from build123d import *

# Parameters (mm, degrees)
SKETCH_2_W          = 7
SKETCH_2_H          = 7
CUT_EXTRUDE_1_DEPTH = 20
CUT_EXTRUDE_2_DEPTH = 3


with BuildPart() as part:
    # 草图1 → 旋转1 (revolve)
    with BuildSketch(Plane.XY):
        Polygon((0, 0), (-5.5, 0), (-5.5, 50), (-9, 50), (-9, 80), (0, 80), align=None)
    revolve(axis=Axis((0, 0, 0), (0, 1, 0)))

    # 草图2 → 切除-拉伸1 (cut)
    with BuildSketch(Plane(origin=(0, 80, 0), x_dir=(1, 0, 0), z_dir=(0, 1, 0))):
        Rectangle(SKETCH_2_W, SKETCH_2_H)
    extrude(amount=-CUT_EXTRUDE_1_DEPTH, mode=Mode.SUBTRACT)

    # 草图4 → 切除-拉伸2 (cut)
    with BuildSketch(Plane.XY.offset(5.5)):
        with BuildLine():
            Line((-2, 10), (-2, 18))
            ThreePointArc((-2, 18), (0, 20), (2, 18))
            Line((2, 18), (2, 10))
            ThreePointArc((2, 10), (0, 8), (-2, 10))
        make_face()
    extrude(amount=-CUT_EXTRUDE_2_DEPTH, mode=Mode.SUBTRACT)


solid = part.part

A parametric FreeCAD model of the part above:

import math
import FreeCAD as App
import Part
import Sketcher

doc = App.newDocument("Part")
body = doc.addObject("PartDesign::Body", "Body")

# Sketch on XY plane
sketch1 = body.newObject("Sketcher::SketchObject", "Sketch")
sketch1.AttachmentSupport = (doc.getObject("XY_Plane"), [""])
sketch1.MapMode = "FlatFace"
sketch1.addGeometry([
    Part.LineSegment(App.Vector(-5.5, 0, 0), App.Vector(0, 0, 0)),  # 0
    Part.LineSegment(App.Vector(0, 0, 0), App.Vector(0, 80, 0)),  # 1
    Part.LineSegment(App.Vector(0, 80, 0), App.Vector(-9, 80, 0)),  # 2
    Part.LineSegment(App.Vector(-9, 80, 0), App.Vector(-9, 50, 0)),  # 3
    Part.LineSegment(App.Vector(-9, 50, 0), App.Vector(-5.5, 50, 0)),  # 4
    Part.LineSegment(App.Vector(-5.5, 50, 0), App.Vector(-5.5, 0, 0)),  # 5
], False)
sketch1.addConstraint([
    Sketcher.Constraint("Coincident", 0, 2, 1, 1),
    Sketcher.Constraint("Coincident", 1, 2, 2, 1),
    Sketcher.Constraint("Coincident", 2, 2, 3, 1),
    Sketcher.Constraint("Coincident", 3, 2, 4, 1),
    Sketcher.Constraint("Coincident", 4, 2, 5, 1),
    Sketcher.Constraint("Coincident", 5, 2, 0, 1),
    Sketcher.Constraint("Horizontal", 0),
    Sketcher.Constraint("Vertical", 1),
    Sketcher.Constraint("Horizontal", 2),
    Sketcher.Constraint("Vertical", 3),
    Sketcher.Constraint("Horizontal", 4),
    Sketcher.Constraint("Vertical", 5),
    Sketcher.Constraint("Coincident", 0, 2, -1, 1),
    Sketcher.Constraint("DistanceX", 2, 2, 2, 1, 9.0),
    Sketcher.Constraint("DistanceY", 1, 1, 1, 2, 80.0),
    Sketcher.Constraint("DistanceY", 3, 2, 3, 1, 30.0),
    Sketcher.Constraint("DistanceX", 0, 1, 0, 2, 5.5),
])
revolution = body.newObject("PartDesign::Revolution", "Revolution")
revolution.Profile = sketch1
revolution.ReferenceAxis = (sketch1, ["V_Axis"])
revolution.Angle = 360

# Sketch on XZ plane
sketch2 = body.newObject("Sketcher::SketchObject", "Sketch001")
sketch2.AttachmentSupport = (doc.getObject("XZ_Plane"), [""])
sketch2.MapMode = "FlatFace"
sketch2.AttachmentOffset = App.Placement(App.Vector(0, 0, -80), App.Rotation())
sketch2.addGeometry([
    Part.LineSegment(App.Vector(-4, -4, 0), App.Vector(-4, 4, 0)),
    Part.LineSegment(App.Vector(-4, 4, 0), App.Vector(4, 4, 0)),
    Part.LineSegment(App.Vector(4, 4, 0), App.Vector(4, -4, 0)),
    Part.LineSegment(App.Vector(4, -4, 0), App.Vector(-4, -4, 0)),
], False)
sketch2.addConstraint([
    Sketcher.Constraint("Coincident", 0, 2, 1, 1),
    Sketcher.Constraint("Coincident", 1, 2, 2, 1),
    Sketcher.Constraint("Coincident", 2, 2, 3, 1),
    Sketcher.Constraint("Coincident", 3, 2, 0, 1),
    Sketcher.Constraint("Vertical", 0),
    Sketcher.Constraint("Horizontal", 1),
    Sketcher.Constraint("Vertical", 2),
    Sketcher.Constraint("Horizontal", 3),
    Sketcher.Constraint("Symmetric", 0, 2, 2, 2, -1, 1),
    Sketcher.Constraint("Equal", 3, 0),
    Sketcher.Constraint("DistanceX", 1, 1, 1, 2, 7.0),
])
pocket1 = body.newObject("PartDesign::Pocket", "Pocket")
pocket1.Profile = sketch2
pocket1.Length = 20
pocket1.Reversed = True

# Sketch on XY plane
sketch3 = body.newObject("Sketcher::SketchObject", "Sketch002")
sketch3.AttachmentSupport = (doc.getObject("XY_Plane"), [""])
sketch3.MapMode = "FlatFace"
sketch3.AttachmentOffset = App.Placement(App.Vector(0, 0, 5.5), App.Rotation())
sketch3.addGeometry([
    Part.LineSegment(App.Vector(-2, 18, 0), App.Vector(-2, 10, 0)),
    Part.ArcOfCircle(Part.Circle(App.Vector(0, 10, 0), App.Vector(0, 0, 1), 2), math.radians(180), math.radians(360)),
    Part.LineSegment(App.Vector(2, 10, 0), App.Vector(2, 18, 0)),
    Part.ArcOfCircle(Part.Circle(App.Vector(0, 18, 0), App.Vector(0, 0, 1), 2), math.radians(0), math.radians(180)),
], False)
sketch3.addConstraint([
    Sketcher.Constraint("Tangent", 0, 2, 1, 1),
    Sketcher.Constraint("Tangent", 1, 2, 2, 1),
    Sketcher.Constraint("Tangent", 2, 2, 3, 1),
    Sketcher.Constraint("Tangent", 3, 2, 0, 1),
    Sketcher.Constraint("Vertical", 0),
    Sketcher.Constraint("Vertical", 2),
    Sketcher.Constraint("PointOnObject", 1, 3, -2),
    Sketcher.Constraint("Radius", 1, 2.0),
    Sketcher.Constraint("DistanceY", 0, 2, 0, 1, 8.0),
    Sketcher.Constraint("DistanceY", -1, 1, 1, 3, 10.0),
])
pocket2 = body.newObject("PartDesign::Pocket", "Pocket001")
pocket2.Profile = sketch3
pocket2.Length = 3

doc.recompute()
